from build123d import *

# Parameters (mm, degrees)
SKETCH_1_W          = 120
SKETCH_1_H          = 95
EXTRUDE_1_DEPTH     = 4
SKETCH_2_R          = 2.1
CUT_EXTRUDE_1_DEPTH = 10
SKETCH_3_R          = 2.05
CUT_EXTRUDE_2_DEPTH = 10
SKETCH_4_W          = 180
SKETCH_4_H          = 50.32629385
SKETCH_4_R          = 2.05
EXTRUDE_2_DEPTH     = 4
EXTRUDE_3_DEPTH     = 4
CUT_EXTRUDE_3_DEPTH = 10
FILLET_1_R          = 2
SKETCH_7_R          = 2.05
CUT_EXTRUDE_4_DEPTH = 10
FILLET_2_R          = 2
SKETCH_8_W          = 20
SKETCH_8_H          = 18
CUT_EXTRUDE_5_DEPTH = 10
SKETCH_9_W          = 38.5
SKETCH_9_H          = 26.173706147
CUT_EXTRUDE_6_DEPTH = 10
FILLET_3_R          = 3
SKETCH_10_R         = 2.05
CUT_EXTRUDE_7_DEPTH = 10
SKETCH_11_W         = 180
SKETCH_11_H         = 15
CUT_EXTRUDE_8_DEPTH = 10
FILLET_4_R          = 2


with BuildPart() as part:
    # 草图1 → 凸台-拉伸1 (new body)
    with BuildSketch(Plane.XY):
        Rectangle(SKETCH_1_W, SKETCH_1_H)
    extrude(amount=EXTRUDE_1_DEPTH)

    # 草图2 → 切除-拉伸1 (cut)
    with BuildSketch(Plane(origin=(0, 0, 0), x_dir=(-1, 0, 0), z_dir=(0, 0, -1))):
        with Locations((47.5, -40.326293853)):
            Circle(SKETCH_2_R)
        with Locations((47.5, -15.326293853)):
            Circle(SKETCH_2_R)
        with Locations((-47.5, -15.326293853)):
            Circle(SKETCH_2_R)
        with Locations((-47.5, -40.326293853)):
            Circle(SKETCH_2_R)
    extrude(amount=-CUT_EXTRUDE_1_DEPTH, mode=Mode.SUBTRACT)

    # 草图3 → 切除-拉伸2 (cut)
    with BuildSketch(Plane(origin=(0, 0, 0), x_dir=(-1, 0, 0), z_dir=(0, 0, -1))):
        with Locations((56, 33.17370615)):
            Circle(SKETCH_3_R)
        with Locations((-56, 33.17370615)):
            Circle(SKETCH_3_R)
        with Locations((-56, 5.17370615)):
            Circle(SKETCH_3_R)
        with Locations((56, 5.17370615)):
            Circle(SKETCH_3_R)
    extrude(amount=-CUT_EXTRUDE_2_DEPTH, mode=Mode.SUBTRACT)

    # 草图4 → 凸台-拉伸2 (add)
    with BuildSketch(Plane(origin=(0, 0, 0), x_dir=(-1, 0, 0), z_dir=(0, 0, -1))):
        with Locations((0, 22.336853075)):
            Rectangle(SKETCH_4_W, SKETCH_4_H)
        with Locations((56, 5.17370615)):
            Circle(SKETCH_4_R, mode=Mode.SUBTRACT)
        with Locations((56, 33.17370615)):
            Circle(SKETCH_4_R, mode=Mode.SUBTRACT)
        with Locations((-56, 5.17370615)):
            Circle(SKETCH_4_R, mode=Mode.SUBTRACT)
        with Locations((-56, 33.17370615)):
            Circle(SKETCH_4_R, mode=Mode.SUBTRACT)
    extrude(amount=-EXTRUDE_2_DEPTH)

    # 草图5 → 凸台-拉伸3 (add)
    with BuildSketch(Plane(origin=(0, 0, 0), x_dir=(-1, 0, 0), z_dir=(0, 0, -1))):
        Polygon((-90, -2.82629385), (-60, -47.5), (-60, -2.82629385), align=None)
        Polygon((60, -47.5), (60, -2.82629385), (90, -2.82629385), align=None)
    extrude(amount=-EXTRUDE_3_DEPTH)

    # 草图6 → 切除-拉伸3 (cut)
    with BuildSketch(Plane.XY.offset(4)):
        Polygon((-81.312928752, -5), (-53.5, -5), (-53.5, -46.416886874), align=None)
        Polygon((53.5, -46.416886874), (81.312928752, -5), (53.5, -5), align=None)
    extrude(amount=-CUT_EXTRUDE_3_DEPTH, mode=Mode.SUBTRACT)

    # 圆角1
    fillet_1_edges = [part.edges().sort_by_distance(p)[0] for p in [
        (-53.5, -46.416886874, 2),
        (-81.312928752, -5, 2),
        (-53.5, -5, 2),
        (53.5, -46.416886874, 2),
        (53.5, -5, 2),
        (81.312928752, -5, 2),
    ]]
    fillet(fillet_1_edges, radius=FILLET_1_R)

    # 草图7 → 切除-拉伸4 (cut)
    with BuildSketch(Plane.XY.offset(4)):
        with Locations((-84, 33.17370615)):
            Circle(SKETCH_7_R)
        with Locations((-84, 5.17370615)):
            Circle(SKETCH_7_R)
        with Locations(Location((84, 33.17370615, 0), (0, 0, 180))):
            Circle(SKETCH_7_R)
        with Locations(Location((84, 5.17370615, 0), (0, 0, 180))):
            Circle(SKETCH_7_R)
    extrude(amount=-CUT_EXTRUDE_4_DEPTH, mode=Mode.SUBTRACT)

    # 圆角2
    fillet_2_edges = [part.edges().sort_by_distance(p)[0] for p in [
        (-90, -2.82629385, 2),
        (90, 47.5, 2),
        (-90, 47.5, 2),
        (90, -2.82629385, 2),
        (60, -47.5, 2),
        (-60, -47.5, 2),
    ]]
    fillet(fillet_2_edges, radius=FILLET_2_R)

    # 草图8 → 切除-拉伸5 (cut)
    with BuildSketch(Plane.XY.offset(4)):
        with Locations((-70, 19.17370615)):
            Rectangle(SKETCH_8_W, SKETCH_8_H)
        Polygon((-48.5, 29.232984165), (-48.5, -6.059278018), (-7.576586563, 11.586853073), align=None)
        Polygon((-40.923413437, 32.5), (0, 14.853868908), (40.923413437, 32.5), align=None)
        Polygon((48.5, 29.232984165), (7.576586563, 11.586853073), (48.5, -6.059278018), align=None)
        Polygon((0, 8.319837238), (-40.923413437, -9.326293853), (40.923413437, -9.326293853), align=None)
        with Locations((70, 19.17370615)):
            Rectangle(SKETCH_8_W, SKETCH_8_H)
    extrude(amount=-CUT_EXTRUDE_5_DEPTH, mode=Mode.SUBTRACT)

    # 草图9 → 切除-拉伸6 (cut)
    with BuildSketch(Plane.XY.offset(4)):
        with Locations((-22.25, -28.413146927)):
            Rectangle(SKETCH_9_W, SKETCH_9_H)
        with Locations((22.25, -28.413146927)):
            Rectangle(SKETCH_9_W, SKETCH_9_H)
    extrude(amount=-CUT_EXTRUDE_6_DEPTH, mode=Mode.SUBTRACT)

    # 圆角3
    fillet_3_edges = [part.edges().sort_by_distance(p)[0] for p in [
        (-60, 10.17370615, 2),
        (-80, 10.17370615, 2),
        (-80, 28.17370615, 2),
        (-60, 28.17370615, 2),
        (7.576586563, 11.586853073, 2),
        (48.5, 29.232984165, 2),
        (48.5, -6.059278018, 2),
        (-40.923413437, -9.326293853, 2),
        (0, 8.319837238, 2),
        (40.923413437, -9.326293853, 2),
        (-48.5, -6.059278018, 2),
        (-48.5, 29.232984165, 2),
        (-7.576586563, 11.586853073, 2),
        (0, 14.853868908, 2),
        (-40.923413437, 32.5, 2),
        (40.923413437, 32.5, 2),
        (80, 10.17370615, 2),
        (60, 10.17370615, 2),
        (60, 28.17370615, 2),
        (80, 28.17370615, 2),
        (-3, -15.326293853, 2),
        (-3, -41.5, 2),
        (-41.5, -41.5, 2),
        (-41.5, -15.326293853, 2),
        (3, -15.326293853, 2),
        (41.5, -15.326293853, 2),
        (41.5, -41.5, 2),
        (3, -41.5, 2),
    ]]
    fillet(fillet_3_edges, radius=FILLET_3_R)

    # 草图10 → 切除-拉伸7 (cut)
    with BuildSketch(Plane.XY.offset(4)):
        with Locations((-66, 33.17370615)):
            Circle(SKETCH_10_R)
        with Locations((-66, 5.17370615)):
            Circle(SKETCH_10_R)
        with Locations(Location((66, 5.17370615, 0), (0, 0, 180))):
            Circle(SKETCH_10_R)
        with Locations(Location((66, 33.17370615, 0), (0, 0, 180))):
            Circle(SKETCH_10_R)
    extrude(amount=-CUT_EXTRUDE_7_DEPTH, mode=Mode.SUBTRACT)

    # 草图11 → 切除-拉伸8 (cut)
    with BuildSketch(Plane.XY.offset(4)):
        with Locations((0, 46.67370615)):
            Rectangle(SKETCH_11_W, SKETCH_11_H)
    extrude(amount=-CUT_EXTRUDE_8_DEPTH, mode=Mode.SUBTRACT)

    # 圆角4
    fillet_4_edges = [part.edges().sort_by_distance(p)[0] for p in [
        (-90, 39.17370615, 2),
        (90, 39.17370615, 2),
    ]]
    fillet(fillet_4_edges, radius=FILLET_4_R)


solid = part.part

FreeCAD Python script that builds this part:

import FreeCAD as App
import Part
import Sketcher
from FreeCAD import Vector


def edges_at(feature, points):
    """Names of the edges that pass closest to the given points."""
    edges = feature.Shape.Edges
    near = lambda p: min(range(len(edges)), key=lambda i: edges[i].distToShape(Part.Vertex(*p))[0])
    return sorted({f"Edge{near(p) + 1}" for p in points})


def add_polygon(sketch, points):
    """Adds a closed chain of lines whose ends are joined by coincident constraints."""
    first, n = sketch.GeometryCount, len(points)
    for a, b in zip(points, points[1:] + points[:1]):
        sketch.addGeometry(Part.LineSegment(App.Vector(*a, 0), App.Vector(*b, 0)), False)
    for i in range(n):
        sketch.addConstraint(Sketcher.Constraint("Coincident", first + i, 2, first + (i + 1) % n, 1))

doc = App.newDocument("Part")
body = doc.addObject("PartDesign::Body", "Body")

# Sketch on XY plane
sketch1 = body.newObject("Sketcher::SketchObject", "Sketch")
sketch1.AttachmentSupport = (doc.getObject("XY_Plane"), [""])
sketch1.MapMode = "FlatFace"
add_polygon(sketch1, [(-60, 47.5), (-60, -47.5), (60, -47.5), (60, 47.5)])  # lines 0-3
sketch1.addConstraint(Sketcher.Constraint("Vertical", 0))
sketch1.addConstraint(Sketcher.Constraint("Horizontal", 1))
sketch1.addConstraint(Sketcher.Constraint("Vertical", 2))
sketch1.addConstraint(Sketcher.Constraint("Horizontal", 3))
sketch1.addConstraint(Sketcher.Constraint("Symmetric", 0, 2, 2, 2, -1, 1))
sketch1.addConstraint(Sketcher.Constraint("DistanceX", 1, 1, 1, 2, 120.0))
sketch1.addConstraint(Sketcher.Constraint("DistanceY", 0, 2, 0, 1, 95.0))
pad1 = body.newObject("PartDesign::Pad", "Pad")
pad1.Profile = sketch1
pad1.Length = 4

# Sketch on XY plane
sketch2 = body.newObject("Sketcher::SketchObject", "Sketch001")
sketch2.AttachmentSupport = (doc.getObject("XY_Plane"), [""])
sketch2.MapMode = "FlatFace"
sketch2.addGeometry(Part.Circle(Vector(-47.5, -40.326294, 0), Vector(0, 0, 1), 2.1), False)
sketch2.addGeometry(Part.Circle(Vector(-47.5, -15.326294, 0), Vector(0, 0, 1), 2.1), False)
sketch2.addGeometry(Part.Circle(Vector(47.5, -15.326294, 0), Vector(0, 0, 1), 2.1), False)
sketch2.addGeometry(Part.Circle(Vector(47.5, -40.326294, 0), Vector(0, 0, 1), 2.1), False)
sketch2.addConstraint(Sketcher.Constraint("Equal", 0, 1))
sketch2.addConstraint(Sketcher.Constraint("Equal", 1, 2))
sketch2.addConstraint(Sketcher.Constraint("Equal", 2, 3))
sketch2.addConstraint(Sketcher.Constraint("Symmetric", 1, 3, 2, 3, -2))
sketch2.addConstraint(Sketcher.Constraint("Symmetric", 0, 3, 3, 3, -2))
sketch2.addConstraint(Sketcher.Constraint("Vertical", 0, 3, 1, 3))
sketch2.addConstraint(Sketcher.Constraint("Diameter", 0, 4.2))
sketch2.addConstraint(Sketcher.Constraint("DistanceY", 0, 3, 1, 3, 25.0))
sketch2.addConstraint(Sketcher.Constraint("DistanceX", 1, 3, 2, 3, 95.0))
sketch2.addConstraint(Sketcher.Constraint("DistanceY", 0, 3, -1, 1, 40.326294))
pocket1 = body.newObject("PartDesign::Pocket", "Pocket")
pocket1.Profile = sketch2
pocket1.Length = 10
pocket1.Reversed = True

# Sketch on XY plane
sketch3 = body.newObject("Sketcher::SketchObject", "Sketch002")
sketch3.AttachmentSupport = (doc.getObject("XY_Plane"), [""])
sketch3.MapMode = "FlatFace"
sketch3.addGeometry(Part.Circle(Vector(-56, 33.173706, 0), Vector(0, 0, 1), 2.05), False)
sketch3.addGeometry(Part.Circle(Vector(56, 33.173706, 0), Vector(0, 0, 1), 2.05), False)
sketch3.addGeometry(Part.Circle(Vector(56, 5.173706, 0), Vector(0, 0, 1), 2.05), False)
sketch3.addGeometry(Part.Circle(Vector(-56, 5.173706, 0), Vector(0, 0, 1), 2.05), False)
sketch3.addConstraint(Sketcher.Constraint("Equal", 0, 1))
sketch3.addConstraint(Sketcher.Constraint("Equal", 1, 2))
sketch3.addConstraint(Sketcher.Constraint("Equal", 2, 3))
sketch3.addConstraint(Sketcher.Constraint("Symmetric", 0, 3, 1, 3, -2))
sketch3.addConstraint(Sketcher.Constraint("Symmetric", 2, 3, 3, 3, -2))
sketch3.addConstraint(Sketcher.Constraint("Vertical", 1, 3, 2, 3))
sketch3.addConstraint(Sketcher.Constraint("Diameter", 0, 4.1))
sketch3.addConstraint(Sketcher.Constraint("DistanceX", 0, 3, -1, 1, 56.0))
sketch3.addConstraint(Sketcher.Constraint("DistanceY", 2, 3, 1, 3, 28.0))
sketch3.addConstraint(Sketcher.Constraint("DistanceY", -1, 1, 0, 3, 33.173706))
pocket2 = body.newObject("PartDesign::Pocket", "Pocket001")
pocket2.Profile = sketch3
pocket2.Length = 10
pocket2.Reversed = True

# Sketch on XY plane
sketch4 = body.newObject("Sketcher::SketchObject", "Sketch003")
sketch4.AttachmentSupport = (doc.getObject("XY_Plane"), [""])
sketch4.MapMode = "FlatFace"
add_polygon(sketch4, [(90, 47.5), (90, -2.826294), (-90, -2.826294), (-90, 47.5)])  # lines 0-3
sketch4.addGeometry(Part.Circle(Vector(56, 5.173706, 0), Vector(0, 0, 1), 2.05), False)  # 4
sketch4.addGeometry(Part.Circle(Vector(-56, 5.173706, 0), Vector(0, 0, 1), 2.05), False)  # 5
sketch4.addGeometry(Part.Circle(Vector(56, 33.173706, 0), Vector(0, 0, 1), 2.05), False)  # 6
sketch4.addGeometry(Part.Circle(Vector(-56, 33.173706, 0), Vector(0, 0, 1), 2.05), False)  # 7
sketch4.addConstraint(Sketcher.Constraint("Vertical", 0))
sketch4.addConstraint(Sketcher.Constraint("Horizontal", 1))
sketch4.addConstraint(Sketcher.Constraint("Vertical", 2))
sketch4.addConstraint(Sketcher.Constraint("Horizontal", 3))
sketch4.addConstraint(Sketcher.Constraint("Equal", 4, 5))
sketch4.addConstraint(Sketcher.Constraint("Equal", 5, 6))
sketch4.addConstraint(Sketcher.Constraint("Equal", 6, 7))
sketch4.addConstraint(Sketcher.Constraint("Symmetric", 4, 3, 5, 3, -2))
sketch4.addConstraint(Sketcher.Constraint("Symmetric", 6, 3, 7, 3, -2))
sketch4.addConstraint(Sketcher.Constraint("Vertical", 4, 3, 6, 3))
sketch4.addConstraint(Sketcher.Constraint("Diameter", 4, 4.1))
sketch4.addConstraint(Sketcher.Constraint("DistanceX", 1, 2, 1, 1, 180.0))
sketch4.addConstraint(Sketcher.Constraint("DistanceX", -1, 1, 4, 3, 56.0))
sketch4.addConstraint(Sketcher.Constraint("DistanceX", -1, 1, 0, 2, 90.0))
sketch4.addConstraint(Sketcher.Constraint("DistanceY", 4, 3, 6, 3, 28.0))
sketch4.addConstraint(Sketcher.Constraint("DistanceY", 0, 2, 4, 3, 8.0))
sketch4.addConstraint(Sketcher.Constraint("DistanceY", -1, 1, 2, 2, 47.5))
sketch4.addConstraint(Sketcher.Constraint("DistanceY", 0, 2, 0, 1, 50.326294))
pad2 = body.newObject("PartDesign::Pad", "Pad001")
pad2.Profile = sketch4
pad2.Length = 4

# Sketch on XY plane
sketch5 = body.newObject("Sketcher::SketchObject", "Sketch004")
sketch5.AttachmentSupport = (doc.getObject("XY_Plane"), [""])
sketch5.MapMode = "FlatFace"
add_polygon(sketch5, [(90, -2.826294), (60, -47.5), (60, -2.826294)])  # lines 0-2
add_polygon(sketch5, [(-60, -2.826294), (-60, -47.5), (-90, -2.826294)])  # lines 3-5
sketch5.addConstraint(Sketcher.Constraint("Vertical", 1))
sketch5.addConstraint(Sketcher.Constraint("Horizontal", 2))
sketch5.addConstraint(Sketcher.Constraint("Vertical", 3))
sketch5.addConstraint(Sketcher.Constraint("Horizontal", 5))
sketch5.addConstraint(Sketcher.Constraint("Symmetric", 0, 2, 3, 2, -2))
sketch5.addConstraint(Sketcher.Constraint("Symmetric", 2, 2, 4, 2, -2))
sketch5.addConstraint(Sketcher.Constraint("DistanceX", 2, 1, 2, 2, 30.0))
sketch5.addConstraint(Sketcher.Constraint("DistanceX", -1, 1, 0, 2, 60.0))
sketch5.addConstraint(Sketcher.Constraint("DistanceY", 0, 2, -1, 1, 47.5))
sketch5.addConstraint(Sketcher.Constraint("Distance", 0, 53.812081))
pad3 = body.newObject("PartDesign::Pad", "Pad002")
pad3.Profile = sketch5
pad3.Length = 4

# Sketch on XY plane
sketch6 = body.newObject("Sketcher::SketchObject", "Sketch005")
sketch6.AttachmentSupport = (doc.getObject("XY_Plane"), [""])
sketch6.MapMode = "FlatFace"
sketch6.AttachmentOffset = App.Placement(Vector(0, 0, 4), App.Rotation())
add_polygon(sketch6, [(-53.5, -5), (-81.312929, -5), (-53.5, -46.416887)])  # lines 0-2
add_polygon(sketch6, [(53.5, -46.416887), (81.312929, -5), (53.5, -5)])  # lines 3-5
sketch6.addConstraint(Sketcher.Constraint("Horizontal", 0))
sketch6.addConstraint(Sketcher.Constraint("Vertical", 2))
sketch6.addConstraint(Sketcher.Constraint("Horizontal", 4))
sketch6.addConstraint(Sketcher.Constraint("Vertical", 5))
sketch6.addConstraint(Sketcher.Constraint("Symmetric", 0, 2, 3, 2, -2))
sketch6.addConstraint(Sketcher.Constraint("Symmetric", 1, 2, 5, 2, -2))
sketch6.addConstraint(Sketcher.Constraint("DistanceY", 0, 2, -1, 1, 5.0))
sketch6.addConstraint(Sketcher.Constraint("DistanceX", 2, 2, 4, 2, 107.0))
sketch6.addConstraint(Sketcher.Constraint("DistanceX", 0, 2, 0, 1, 27.812929))
sketch6.addConstraint(Sketcher.Constraint("DistanceY", 2, 1, 2, 2, 41.416887))
pocket3 = body.newObject("PartDesign::Pocket", "Pocket002")
pocket3.Profile = sketch6
pocket3.Length = 10
doc.recompute()

fillet = body.newObject("PartDesign::Fillet", "Fillet")
fillet.Base = (pocket3, edges_at(pocket3, [
    (-53.5, -46.417, 2),
    (-81.313, -5, 2),
    (-53.5, -5, 2),
    (53.5, -46.417, 2),
    (53.5, -5, 2),
    (81.313, -5, 2),
]))
fillet.Radius = 2

# Sketch on XY plane
sketch7 = body.newObject("Sketcher::SketchObject", "Sketch006")
sketch7.AttachmentSupport = (doc.getObject("XY_Plane"), [""])
sketch7.MapMode = "FlatFace"
sketch7.AttachmentOffset = App.Placement(Vector(0, 0, 4), App.Rotation())
sketch7.addGeometry(Part.Circle(Vector(-84, 33.173706, 0), Vector(0, 0, 1), 2.05), False)
sketch7.addGeometry(Part.Circle(Vector(-84, 5.173706, 0), Vector(0, 0, 1), 2.05), False)
sketch7.addGeometry(Part.Circle(Vector(84, 33.173706, 0), Vector(0, 0, 1), 2.05), False)
sketch7.addGeometry(Part.Circle(Vector(84, 5.173706, 0), Vector(0, 0, 1), 2.05), False)
sketch7.addConstraint(Sketcher.Constraint("Equal", 0, 1))
sketch7.addConstraint(Sketcher.Constraint("Equal", 1, 2))
sketch7.addConstraint(Sketcher.Constraint("Equal", 2, 3))
sketch7.addConstraint(Sketcher.Constraint("Symmetric", 0, 3, 2, 3, -2))
sketch7.addConstraint(Sketcher.Constraint("Symmetric", 1, 3, 3, 3, -2))
sketch7.addConstraint(Sketcher.Constraint("Vertical", 0, 3, 1, 3))
sketch7.addConstraint(Sketcher.Constraint("Diameter", 0, 4.1))
sketch7.addConstraint(Sketcher.Constraint("DistanceX", 0, 3, -1, 1, 84.0))
sketch7.addConstraint(Sketcher.Constraint("DistanceY", 1, 3, 0, 3, 28.0))
sketch7.addConstraint(Sketcher.Constraint("DistanceY", -1, 1, 0, 3, 33.173706))
pocket4 = body.newObject("PartDesign::Pocket", "Pocket003")
pocket4.Profile = sketch7
pocket4.Length = 10
doc.recompute()

fillet2 = body.newObject("PartDesign::Fillet", "Fillet001")
fillet2.Base = (pocket4, edges_at(pocket4, [
    (-90, -2.826, 2),
    (90, 47.5, 2),
    (-90, 47.5, 2),
    (90, -2.826, 2),
    (60, -47.5, 2),
    (-60, -47.5, 2),
]))
fillet2.Radius = 2

# Sketch on XY plane
sketch8 = body.newObject("Sketcher::SketchObject", "Sketch007")
sketch8.AttachmentSupport = (doc.getObject("XY_Plane"), [""])
sketch8.MapMode = "FlatFace"
sketch8.AttachmentOffset = App.Placement(Vector(0, 0, 4), App.Rotation())
add_polygon(sketch8, [(-80, 28.173706), (-80, 10.173706), (-60, 10.173706), (-60, 28.173706)])  # lines 0-3
add_polygon(sketch8, [(-48.5, 29.232984), (-48.5, -6.059278), (-7.576587, 11.586853)])  # lines 4-6
add_polygon(sketch8, [(-40.923413, 32.5), (0, 14.853869), (40.923413, 32.5)])  # lines 7-9
add_polygon(sketch8, [(48.5, 29.232984), (7.576587, 11.586853), (48.5, -6.059278)])  # lines 10-12
add_polygon(sketch8, [(0, 8.319837), (-40.923413, -9.326294), (40.923413, -9.326294)])  # lines 13-15
add_polygon(sketch8, [(60, 28.173706), (60, 10.173706), (80, 10.173706), (80, 28.173706)])  # lines 16-19
sketch8.addConstraint(Sketcher.Constraint("Vertical", 0))
sketch8.addConstraint(Sketcher.Constraint("Horizontal", 1))
sketch8.addConstraint(Sketcher.Constraint("Vertical", 2))
sketch8.addConstraint(Sketcher.Constraint("Horizontal", 3))
sketch8.addConstraint(Sketcher.Constraint("Vertical", 4))
sketch8.addConstraint(Sketcher.Constraint("Horizontal", 9))
sketch8.addConstraint(Sketcher.Constraint("Vertical", 12))
sketch8.addConstraint(Sketcher.Constraint("Horizontal", 14))
sketch8.addConstraint(Sketcher.Constraint("Vertical", 16))
sketch8.addConstraint(Sketcher.Constraint("Horizontal", 17))
sketch8.addConstraint(Sketcher.Constraint("Vertical", 18))
sketch8.addConstraint(Sketcher.Constraint("Horizontal", 19))
sketch8.addConstraint(Sketcher.Constraint("Symmetric", 5, 2, 10, 2, -2))
sketch8.addConstraint(Sketcher.Constraint("Symmetric", 4, 2, 11, 2, -2))
sketch8.addConstraint(Sketcher.Constraint("Symmetric", 1, 2, 16, 2, -2))
sketch8.addConstraint(Sketcher.Constraint("Symmetric", 3, 2, 18, 2, -2))
sketch8.addConstraint(Sketcher.Constraint("PointOnObject", 7, 2, -2))
sketch8.addConstraint(Sketcher.Constraint("PointOnObject", 15, 2, -2))
sketch8.addConstraint(Sketcher.Constraint("Parallel", 6, 7))
sketch8.addConstraint(Sketcher.Constraint("Parallel", 5, 8))
sketch8.addConstraint(Sketcher.Constraint("Parallel", 8, 10))
sketch8.addConstraint(Sketcher.Constraint("Parallel", 7, 11))
sketch8.addConstraint(Sketcher.Constraint("Parallel", 10, 13))
sketch8.addConstraint(Sketcher.Constraint("Parallel", 11, 15))
sketch8.addConstraint(Sketcher.Constraint("Vertical", 9, 2, 13, 2))
sketch8.addConstraint(Sketcher.Constraint("Equal", 6, 7))
sketch8.addConstraint(Sketcher.Constraint("DistanceX", 1, 1, 1, 2, 20.0))
sketch8.addConstraint(Sketcher.Constraint("DistanceY", 0, 2, 0, 1, 18.0))
sketch8.addConstraint(Sketcher.Constraint("DistanceX", 0, 2, -1, 1, 80.0))
sketch8.addConstraint(Sketcher.Constraint("DistanceX", 4, 2, 11, 2, 97.0))
sketch8.addConstraint(Sketcher.Constraint("DistanceY", -1, 1, 8, 2, 32.5))
sketch8.addConstraint(Sketcher.Constraint("DistanceY", 13, 2, 1, 2, 19.5))
sketch8.addConstraint(Sketcher.Constraint("DistanceX", 9, 2, 9, 1, 81.846827))
sketch8.addConstraint(Sketcher.Constraint("DistanceY", 4, 2, 4, 1, 35.292262))
sketch8.addConstraint(Sketcher.Constraint("DistanceY", 4, 2, -1, 1, 6.059278))
sketch8.addConstraint(Sketcher.Constraint("DistanceY", 2, 2, 6, 2, 1.059278))
pocket5 = body.newObject("PartDesign::Pocket", "Pocket004")
pocket5.Profile = sketch8
pocket5.Length = 10

# Sketch on XY plane
sketch9 = body.newObject("Sketcher::SketchObject", "Sketch008")
sketch9.AttachmentSupport = (doc.getObject("XY_Plane"), [""])
sketch9.MapMode = "FlatFace"
sketch9.AttachmentOffset = App.Placement(Vector(0, 0, 4), App.Rotation())
add_polygon(sketch9, [(-41.5, -15.326294), (-41.5, -41.5), (-3, -41.5), (-3, -15.326294)])  # lines 0-3
add_polygon(sketch9, [(3, -15.326294), (3, -41.5), (41.5, -41.5), (41.5, -15.326294)])  # lines 4-7
sketch9.addConstraint(Sketcher.Constraint("Vertical", 0))
sketch9.addConstraint(Sketcher.Constraint("Horizontal", 1))
sketch9.addConstraint(Sketcher.Constraint("Vertical", 2))
sketch9.addConstraint(Sketcher.Constraint("Horizontal", 3))
sketch9.addConstraint(Sketcher.Constraint("Vertical", 4))
sketch9.addConstraint(Sketcher.Constraint("Horizontal", 5))
sketch9.addConstraint(Sketcher.Constraint("Vertical", 6))
sketch9.addConstraint(Sketcher.Constraint("Horizontal", 7))
sketch9.addConstraint(Sketcher.Constraint("Symmetric", 1, 2, 4, 2, -2))
sketch9.addConstraint(Sketcher.Constraint("Symmetric", 3, 2, 6, 2, -2))
sketch9.addConstraint(Sketcher.Constraint("DistanceX", 1, 1, 1, 2, 38.5))
sketch9.addConstraint(Sketcher.Constraint("DistanceX", 1, 2, -1, 1, 3.0))
sketch9.addConstraint(Sketcher.Constraint("DistanceY", 0, 2, -1, 1, 41.5))
sketch9.addConstraint(Sketcher.Constraint("DistanceY", 0, 2, 0, 1, 26.173706))
pocket6 = body.newObject("PartDesign::Pocket", "Pocket005")
pocket6.Profile = sketch9
pocket6.Length = 10
doc.recompute()

fillet3 = body.newObject("PartDesign::Fillet", "Fillet002")
fillet3.Base = (pocket6, edges_at(pocket6, [
    (-60, 10.174, 2),
    (-80, 10.174, 2),
    (-80, 28.174, 2),
    (-60, 28.174, 2),
    (7.577, 11.587, 2),
    (48.5, 29.233, 2),
    (48.5, -6.059, 2),
    (-40.923, -9.326, 2),
    (0, 8.32, 2),
    (40.923, -9.326, 2),
    (-48.5, -6.059, 2),
    (-48.5, 29.233, 2),
    (-7.577, 11.587, 2),
    (0, 14.854, 2),
    (-40.923, 32.5, 2),
    (40.923, 32.5, 2),
    (80, 10.174, 2),
    (60, 10.174, 2),
    (60, 28.174, 2),
    (80, 28.174, 2),
    (-3, -15.326, 2),
    (-3, -41.5, 2),
    (-41.5, -41.5, 2),
    (-41.5, -15.326, 2),
    (3, -15.326, 2),
    (41.5, -15.326, 2),
    (41.5, -41.5, 2),
    (3, -41.5, 2),
]))
fillet3.Radius = 3

# Sketch on XY plane
sketch10 = body.newObject("Sketcher::SketchObject", "Sketch009")
sketch10.AttachmentSupport = (doc.getObject("XY_Plane"), [""])
sketch10.MapMode = "FlatFace"
sketch10.AttachmentOffset = App.Placement(Vector(0, 0, 4), App.Rotation())
sketch10.addGeometry(Part.Circle(Vector(-66, 33.173706, 0), Vector(0, 0, 1), 2.05), False)
sketch10.addGeometry(Part.Circle(Vector(-66, 5.173706, 0), Vector(0, 0, 1), 2.05), False)
sketch10.addGeometry(Part.Circle(Vector(66, 5.173706, 0), Vector(0, 0, 1), 2.05), False)
sketch10.addGeometry(Part.Circle(Vector(66, 33.173706, 0), Vector(0, 0, 1), 2.05), False)
sketch10.addConstraint(Sketcher.Constraint("Equal", 0, 1))
sketch10.addConstraint(Sketcher.Constraint("Equal", 1, 2))
sketch10.addConstraint(Sketcher.Constraint("Equal", 2, 3))
sketch10.addConstraint(Sketcher.Constraint("Symmetric", 1, 3, 2, 3, -2))
sketch10.addConstraint(Sketcher.Constraint("Symmetric", 0, 3, 3, 3, -2))
sketch10.addConstraint(Sketcher.Constraint("Vertical", 0, 3, 1, 3))
sketch10.addConstraint(Sketcher.Constraint("Diameter", 0, 4.1))
sketch10.addConstraint(Sketcher.Constraint("DistanceX", 0, 3, -1, 1, 66.0))
sketch10.addConstraint(Sketcher.Constraint("DistanceY", 1, 3, 0, 3, 28.0))
sketch10.addConstraint(Sketcher.Constraint("DistanceY", -1, 1, 0, 3, 33.173706))
pocket7 = body.newObject("PartDesign::Pocket", "Pocket006")
pocket7.Profile = sketch10
pocket7.Length = 10

# Sketch on XY plane
sketch11 = body.newObject("Sketcher::SketchObject", "Sketch010")
sketch11.AttachmentSupport = (doc.getObject("XY_Plane"), [""])
sketch11.MapMode = "FlatFace"
sketch11.AttachmentOffset = App.Placement(Vector(0, 0, 4), App.Rotation())
add_polygon(sketch11, [(-90, 54.173706), (-90, 39.173706), (90, 39.173706), (90, 54.173706)])  # lines 0-3
sketch11.addConstraint(Sketcher.Constraint("Vertical", 0))
sketch11.addConstraint(Sketcher.Constraint("Horizontal", 1))
sketch11.addConstraint(Sketcher.Constraint("Vertical", 2))
sketch11.addConstraint(Sketcher.Constraint("Horizontal", 3))
sketch11.addConstraint(Sketcher.Constraint("DistanceX", 1, 1, 1, 2, 180.0))
sketch11.addConstraint(Sketcher.Constraint("DistanceY", 0, 2, 0, 1, 15.0))
sketch11.addConstraint(Sketcher.Constraint("DistanceX", 0, 2, -1, 1, 90.0))
sketch11.addConstraint(Sketcher.Constraint("DistanceY", -1, 1, 0, 2, 39.173706))
pocket8 = body.newObject("PartDesign::Pocket", "Pocket007")
pocket8.Profile = sketch11
pocket8.Length = 10
doc.recompute()

fillet4 = body.newObject("PartDesign::Fillet", "Fillet003")
fillet4.Base = (pocket8, edges_at(pocket8, [(-90, 39.174, 2), (90, 39.174, 2)]))
fillet4.Radius = 2

doc.recompute()
